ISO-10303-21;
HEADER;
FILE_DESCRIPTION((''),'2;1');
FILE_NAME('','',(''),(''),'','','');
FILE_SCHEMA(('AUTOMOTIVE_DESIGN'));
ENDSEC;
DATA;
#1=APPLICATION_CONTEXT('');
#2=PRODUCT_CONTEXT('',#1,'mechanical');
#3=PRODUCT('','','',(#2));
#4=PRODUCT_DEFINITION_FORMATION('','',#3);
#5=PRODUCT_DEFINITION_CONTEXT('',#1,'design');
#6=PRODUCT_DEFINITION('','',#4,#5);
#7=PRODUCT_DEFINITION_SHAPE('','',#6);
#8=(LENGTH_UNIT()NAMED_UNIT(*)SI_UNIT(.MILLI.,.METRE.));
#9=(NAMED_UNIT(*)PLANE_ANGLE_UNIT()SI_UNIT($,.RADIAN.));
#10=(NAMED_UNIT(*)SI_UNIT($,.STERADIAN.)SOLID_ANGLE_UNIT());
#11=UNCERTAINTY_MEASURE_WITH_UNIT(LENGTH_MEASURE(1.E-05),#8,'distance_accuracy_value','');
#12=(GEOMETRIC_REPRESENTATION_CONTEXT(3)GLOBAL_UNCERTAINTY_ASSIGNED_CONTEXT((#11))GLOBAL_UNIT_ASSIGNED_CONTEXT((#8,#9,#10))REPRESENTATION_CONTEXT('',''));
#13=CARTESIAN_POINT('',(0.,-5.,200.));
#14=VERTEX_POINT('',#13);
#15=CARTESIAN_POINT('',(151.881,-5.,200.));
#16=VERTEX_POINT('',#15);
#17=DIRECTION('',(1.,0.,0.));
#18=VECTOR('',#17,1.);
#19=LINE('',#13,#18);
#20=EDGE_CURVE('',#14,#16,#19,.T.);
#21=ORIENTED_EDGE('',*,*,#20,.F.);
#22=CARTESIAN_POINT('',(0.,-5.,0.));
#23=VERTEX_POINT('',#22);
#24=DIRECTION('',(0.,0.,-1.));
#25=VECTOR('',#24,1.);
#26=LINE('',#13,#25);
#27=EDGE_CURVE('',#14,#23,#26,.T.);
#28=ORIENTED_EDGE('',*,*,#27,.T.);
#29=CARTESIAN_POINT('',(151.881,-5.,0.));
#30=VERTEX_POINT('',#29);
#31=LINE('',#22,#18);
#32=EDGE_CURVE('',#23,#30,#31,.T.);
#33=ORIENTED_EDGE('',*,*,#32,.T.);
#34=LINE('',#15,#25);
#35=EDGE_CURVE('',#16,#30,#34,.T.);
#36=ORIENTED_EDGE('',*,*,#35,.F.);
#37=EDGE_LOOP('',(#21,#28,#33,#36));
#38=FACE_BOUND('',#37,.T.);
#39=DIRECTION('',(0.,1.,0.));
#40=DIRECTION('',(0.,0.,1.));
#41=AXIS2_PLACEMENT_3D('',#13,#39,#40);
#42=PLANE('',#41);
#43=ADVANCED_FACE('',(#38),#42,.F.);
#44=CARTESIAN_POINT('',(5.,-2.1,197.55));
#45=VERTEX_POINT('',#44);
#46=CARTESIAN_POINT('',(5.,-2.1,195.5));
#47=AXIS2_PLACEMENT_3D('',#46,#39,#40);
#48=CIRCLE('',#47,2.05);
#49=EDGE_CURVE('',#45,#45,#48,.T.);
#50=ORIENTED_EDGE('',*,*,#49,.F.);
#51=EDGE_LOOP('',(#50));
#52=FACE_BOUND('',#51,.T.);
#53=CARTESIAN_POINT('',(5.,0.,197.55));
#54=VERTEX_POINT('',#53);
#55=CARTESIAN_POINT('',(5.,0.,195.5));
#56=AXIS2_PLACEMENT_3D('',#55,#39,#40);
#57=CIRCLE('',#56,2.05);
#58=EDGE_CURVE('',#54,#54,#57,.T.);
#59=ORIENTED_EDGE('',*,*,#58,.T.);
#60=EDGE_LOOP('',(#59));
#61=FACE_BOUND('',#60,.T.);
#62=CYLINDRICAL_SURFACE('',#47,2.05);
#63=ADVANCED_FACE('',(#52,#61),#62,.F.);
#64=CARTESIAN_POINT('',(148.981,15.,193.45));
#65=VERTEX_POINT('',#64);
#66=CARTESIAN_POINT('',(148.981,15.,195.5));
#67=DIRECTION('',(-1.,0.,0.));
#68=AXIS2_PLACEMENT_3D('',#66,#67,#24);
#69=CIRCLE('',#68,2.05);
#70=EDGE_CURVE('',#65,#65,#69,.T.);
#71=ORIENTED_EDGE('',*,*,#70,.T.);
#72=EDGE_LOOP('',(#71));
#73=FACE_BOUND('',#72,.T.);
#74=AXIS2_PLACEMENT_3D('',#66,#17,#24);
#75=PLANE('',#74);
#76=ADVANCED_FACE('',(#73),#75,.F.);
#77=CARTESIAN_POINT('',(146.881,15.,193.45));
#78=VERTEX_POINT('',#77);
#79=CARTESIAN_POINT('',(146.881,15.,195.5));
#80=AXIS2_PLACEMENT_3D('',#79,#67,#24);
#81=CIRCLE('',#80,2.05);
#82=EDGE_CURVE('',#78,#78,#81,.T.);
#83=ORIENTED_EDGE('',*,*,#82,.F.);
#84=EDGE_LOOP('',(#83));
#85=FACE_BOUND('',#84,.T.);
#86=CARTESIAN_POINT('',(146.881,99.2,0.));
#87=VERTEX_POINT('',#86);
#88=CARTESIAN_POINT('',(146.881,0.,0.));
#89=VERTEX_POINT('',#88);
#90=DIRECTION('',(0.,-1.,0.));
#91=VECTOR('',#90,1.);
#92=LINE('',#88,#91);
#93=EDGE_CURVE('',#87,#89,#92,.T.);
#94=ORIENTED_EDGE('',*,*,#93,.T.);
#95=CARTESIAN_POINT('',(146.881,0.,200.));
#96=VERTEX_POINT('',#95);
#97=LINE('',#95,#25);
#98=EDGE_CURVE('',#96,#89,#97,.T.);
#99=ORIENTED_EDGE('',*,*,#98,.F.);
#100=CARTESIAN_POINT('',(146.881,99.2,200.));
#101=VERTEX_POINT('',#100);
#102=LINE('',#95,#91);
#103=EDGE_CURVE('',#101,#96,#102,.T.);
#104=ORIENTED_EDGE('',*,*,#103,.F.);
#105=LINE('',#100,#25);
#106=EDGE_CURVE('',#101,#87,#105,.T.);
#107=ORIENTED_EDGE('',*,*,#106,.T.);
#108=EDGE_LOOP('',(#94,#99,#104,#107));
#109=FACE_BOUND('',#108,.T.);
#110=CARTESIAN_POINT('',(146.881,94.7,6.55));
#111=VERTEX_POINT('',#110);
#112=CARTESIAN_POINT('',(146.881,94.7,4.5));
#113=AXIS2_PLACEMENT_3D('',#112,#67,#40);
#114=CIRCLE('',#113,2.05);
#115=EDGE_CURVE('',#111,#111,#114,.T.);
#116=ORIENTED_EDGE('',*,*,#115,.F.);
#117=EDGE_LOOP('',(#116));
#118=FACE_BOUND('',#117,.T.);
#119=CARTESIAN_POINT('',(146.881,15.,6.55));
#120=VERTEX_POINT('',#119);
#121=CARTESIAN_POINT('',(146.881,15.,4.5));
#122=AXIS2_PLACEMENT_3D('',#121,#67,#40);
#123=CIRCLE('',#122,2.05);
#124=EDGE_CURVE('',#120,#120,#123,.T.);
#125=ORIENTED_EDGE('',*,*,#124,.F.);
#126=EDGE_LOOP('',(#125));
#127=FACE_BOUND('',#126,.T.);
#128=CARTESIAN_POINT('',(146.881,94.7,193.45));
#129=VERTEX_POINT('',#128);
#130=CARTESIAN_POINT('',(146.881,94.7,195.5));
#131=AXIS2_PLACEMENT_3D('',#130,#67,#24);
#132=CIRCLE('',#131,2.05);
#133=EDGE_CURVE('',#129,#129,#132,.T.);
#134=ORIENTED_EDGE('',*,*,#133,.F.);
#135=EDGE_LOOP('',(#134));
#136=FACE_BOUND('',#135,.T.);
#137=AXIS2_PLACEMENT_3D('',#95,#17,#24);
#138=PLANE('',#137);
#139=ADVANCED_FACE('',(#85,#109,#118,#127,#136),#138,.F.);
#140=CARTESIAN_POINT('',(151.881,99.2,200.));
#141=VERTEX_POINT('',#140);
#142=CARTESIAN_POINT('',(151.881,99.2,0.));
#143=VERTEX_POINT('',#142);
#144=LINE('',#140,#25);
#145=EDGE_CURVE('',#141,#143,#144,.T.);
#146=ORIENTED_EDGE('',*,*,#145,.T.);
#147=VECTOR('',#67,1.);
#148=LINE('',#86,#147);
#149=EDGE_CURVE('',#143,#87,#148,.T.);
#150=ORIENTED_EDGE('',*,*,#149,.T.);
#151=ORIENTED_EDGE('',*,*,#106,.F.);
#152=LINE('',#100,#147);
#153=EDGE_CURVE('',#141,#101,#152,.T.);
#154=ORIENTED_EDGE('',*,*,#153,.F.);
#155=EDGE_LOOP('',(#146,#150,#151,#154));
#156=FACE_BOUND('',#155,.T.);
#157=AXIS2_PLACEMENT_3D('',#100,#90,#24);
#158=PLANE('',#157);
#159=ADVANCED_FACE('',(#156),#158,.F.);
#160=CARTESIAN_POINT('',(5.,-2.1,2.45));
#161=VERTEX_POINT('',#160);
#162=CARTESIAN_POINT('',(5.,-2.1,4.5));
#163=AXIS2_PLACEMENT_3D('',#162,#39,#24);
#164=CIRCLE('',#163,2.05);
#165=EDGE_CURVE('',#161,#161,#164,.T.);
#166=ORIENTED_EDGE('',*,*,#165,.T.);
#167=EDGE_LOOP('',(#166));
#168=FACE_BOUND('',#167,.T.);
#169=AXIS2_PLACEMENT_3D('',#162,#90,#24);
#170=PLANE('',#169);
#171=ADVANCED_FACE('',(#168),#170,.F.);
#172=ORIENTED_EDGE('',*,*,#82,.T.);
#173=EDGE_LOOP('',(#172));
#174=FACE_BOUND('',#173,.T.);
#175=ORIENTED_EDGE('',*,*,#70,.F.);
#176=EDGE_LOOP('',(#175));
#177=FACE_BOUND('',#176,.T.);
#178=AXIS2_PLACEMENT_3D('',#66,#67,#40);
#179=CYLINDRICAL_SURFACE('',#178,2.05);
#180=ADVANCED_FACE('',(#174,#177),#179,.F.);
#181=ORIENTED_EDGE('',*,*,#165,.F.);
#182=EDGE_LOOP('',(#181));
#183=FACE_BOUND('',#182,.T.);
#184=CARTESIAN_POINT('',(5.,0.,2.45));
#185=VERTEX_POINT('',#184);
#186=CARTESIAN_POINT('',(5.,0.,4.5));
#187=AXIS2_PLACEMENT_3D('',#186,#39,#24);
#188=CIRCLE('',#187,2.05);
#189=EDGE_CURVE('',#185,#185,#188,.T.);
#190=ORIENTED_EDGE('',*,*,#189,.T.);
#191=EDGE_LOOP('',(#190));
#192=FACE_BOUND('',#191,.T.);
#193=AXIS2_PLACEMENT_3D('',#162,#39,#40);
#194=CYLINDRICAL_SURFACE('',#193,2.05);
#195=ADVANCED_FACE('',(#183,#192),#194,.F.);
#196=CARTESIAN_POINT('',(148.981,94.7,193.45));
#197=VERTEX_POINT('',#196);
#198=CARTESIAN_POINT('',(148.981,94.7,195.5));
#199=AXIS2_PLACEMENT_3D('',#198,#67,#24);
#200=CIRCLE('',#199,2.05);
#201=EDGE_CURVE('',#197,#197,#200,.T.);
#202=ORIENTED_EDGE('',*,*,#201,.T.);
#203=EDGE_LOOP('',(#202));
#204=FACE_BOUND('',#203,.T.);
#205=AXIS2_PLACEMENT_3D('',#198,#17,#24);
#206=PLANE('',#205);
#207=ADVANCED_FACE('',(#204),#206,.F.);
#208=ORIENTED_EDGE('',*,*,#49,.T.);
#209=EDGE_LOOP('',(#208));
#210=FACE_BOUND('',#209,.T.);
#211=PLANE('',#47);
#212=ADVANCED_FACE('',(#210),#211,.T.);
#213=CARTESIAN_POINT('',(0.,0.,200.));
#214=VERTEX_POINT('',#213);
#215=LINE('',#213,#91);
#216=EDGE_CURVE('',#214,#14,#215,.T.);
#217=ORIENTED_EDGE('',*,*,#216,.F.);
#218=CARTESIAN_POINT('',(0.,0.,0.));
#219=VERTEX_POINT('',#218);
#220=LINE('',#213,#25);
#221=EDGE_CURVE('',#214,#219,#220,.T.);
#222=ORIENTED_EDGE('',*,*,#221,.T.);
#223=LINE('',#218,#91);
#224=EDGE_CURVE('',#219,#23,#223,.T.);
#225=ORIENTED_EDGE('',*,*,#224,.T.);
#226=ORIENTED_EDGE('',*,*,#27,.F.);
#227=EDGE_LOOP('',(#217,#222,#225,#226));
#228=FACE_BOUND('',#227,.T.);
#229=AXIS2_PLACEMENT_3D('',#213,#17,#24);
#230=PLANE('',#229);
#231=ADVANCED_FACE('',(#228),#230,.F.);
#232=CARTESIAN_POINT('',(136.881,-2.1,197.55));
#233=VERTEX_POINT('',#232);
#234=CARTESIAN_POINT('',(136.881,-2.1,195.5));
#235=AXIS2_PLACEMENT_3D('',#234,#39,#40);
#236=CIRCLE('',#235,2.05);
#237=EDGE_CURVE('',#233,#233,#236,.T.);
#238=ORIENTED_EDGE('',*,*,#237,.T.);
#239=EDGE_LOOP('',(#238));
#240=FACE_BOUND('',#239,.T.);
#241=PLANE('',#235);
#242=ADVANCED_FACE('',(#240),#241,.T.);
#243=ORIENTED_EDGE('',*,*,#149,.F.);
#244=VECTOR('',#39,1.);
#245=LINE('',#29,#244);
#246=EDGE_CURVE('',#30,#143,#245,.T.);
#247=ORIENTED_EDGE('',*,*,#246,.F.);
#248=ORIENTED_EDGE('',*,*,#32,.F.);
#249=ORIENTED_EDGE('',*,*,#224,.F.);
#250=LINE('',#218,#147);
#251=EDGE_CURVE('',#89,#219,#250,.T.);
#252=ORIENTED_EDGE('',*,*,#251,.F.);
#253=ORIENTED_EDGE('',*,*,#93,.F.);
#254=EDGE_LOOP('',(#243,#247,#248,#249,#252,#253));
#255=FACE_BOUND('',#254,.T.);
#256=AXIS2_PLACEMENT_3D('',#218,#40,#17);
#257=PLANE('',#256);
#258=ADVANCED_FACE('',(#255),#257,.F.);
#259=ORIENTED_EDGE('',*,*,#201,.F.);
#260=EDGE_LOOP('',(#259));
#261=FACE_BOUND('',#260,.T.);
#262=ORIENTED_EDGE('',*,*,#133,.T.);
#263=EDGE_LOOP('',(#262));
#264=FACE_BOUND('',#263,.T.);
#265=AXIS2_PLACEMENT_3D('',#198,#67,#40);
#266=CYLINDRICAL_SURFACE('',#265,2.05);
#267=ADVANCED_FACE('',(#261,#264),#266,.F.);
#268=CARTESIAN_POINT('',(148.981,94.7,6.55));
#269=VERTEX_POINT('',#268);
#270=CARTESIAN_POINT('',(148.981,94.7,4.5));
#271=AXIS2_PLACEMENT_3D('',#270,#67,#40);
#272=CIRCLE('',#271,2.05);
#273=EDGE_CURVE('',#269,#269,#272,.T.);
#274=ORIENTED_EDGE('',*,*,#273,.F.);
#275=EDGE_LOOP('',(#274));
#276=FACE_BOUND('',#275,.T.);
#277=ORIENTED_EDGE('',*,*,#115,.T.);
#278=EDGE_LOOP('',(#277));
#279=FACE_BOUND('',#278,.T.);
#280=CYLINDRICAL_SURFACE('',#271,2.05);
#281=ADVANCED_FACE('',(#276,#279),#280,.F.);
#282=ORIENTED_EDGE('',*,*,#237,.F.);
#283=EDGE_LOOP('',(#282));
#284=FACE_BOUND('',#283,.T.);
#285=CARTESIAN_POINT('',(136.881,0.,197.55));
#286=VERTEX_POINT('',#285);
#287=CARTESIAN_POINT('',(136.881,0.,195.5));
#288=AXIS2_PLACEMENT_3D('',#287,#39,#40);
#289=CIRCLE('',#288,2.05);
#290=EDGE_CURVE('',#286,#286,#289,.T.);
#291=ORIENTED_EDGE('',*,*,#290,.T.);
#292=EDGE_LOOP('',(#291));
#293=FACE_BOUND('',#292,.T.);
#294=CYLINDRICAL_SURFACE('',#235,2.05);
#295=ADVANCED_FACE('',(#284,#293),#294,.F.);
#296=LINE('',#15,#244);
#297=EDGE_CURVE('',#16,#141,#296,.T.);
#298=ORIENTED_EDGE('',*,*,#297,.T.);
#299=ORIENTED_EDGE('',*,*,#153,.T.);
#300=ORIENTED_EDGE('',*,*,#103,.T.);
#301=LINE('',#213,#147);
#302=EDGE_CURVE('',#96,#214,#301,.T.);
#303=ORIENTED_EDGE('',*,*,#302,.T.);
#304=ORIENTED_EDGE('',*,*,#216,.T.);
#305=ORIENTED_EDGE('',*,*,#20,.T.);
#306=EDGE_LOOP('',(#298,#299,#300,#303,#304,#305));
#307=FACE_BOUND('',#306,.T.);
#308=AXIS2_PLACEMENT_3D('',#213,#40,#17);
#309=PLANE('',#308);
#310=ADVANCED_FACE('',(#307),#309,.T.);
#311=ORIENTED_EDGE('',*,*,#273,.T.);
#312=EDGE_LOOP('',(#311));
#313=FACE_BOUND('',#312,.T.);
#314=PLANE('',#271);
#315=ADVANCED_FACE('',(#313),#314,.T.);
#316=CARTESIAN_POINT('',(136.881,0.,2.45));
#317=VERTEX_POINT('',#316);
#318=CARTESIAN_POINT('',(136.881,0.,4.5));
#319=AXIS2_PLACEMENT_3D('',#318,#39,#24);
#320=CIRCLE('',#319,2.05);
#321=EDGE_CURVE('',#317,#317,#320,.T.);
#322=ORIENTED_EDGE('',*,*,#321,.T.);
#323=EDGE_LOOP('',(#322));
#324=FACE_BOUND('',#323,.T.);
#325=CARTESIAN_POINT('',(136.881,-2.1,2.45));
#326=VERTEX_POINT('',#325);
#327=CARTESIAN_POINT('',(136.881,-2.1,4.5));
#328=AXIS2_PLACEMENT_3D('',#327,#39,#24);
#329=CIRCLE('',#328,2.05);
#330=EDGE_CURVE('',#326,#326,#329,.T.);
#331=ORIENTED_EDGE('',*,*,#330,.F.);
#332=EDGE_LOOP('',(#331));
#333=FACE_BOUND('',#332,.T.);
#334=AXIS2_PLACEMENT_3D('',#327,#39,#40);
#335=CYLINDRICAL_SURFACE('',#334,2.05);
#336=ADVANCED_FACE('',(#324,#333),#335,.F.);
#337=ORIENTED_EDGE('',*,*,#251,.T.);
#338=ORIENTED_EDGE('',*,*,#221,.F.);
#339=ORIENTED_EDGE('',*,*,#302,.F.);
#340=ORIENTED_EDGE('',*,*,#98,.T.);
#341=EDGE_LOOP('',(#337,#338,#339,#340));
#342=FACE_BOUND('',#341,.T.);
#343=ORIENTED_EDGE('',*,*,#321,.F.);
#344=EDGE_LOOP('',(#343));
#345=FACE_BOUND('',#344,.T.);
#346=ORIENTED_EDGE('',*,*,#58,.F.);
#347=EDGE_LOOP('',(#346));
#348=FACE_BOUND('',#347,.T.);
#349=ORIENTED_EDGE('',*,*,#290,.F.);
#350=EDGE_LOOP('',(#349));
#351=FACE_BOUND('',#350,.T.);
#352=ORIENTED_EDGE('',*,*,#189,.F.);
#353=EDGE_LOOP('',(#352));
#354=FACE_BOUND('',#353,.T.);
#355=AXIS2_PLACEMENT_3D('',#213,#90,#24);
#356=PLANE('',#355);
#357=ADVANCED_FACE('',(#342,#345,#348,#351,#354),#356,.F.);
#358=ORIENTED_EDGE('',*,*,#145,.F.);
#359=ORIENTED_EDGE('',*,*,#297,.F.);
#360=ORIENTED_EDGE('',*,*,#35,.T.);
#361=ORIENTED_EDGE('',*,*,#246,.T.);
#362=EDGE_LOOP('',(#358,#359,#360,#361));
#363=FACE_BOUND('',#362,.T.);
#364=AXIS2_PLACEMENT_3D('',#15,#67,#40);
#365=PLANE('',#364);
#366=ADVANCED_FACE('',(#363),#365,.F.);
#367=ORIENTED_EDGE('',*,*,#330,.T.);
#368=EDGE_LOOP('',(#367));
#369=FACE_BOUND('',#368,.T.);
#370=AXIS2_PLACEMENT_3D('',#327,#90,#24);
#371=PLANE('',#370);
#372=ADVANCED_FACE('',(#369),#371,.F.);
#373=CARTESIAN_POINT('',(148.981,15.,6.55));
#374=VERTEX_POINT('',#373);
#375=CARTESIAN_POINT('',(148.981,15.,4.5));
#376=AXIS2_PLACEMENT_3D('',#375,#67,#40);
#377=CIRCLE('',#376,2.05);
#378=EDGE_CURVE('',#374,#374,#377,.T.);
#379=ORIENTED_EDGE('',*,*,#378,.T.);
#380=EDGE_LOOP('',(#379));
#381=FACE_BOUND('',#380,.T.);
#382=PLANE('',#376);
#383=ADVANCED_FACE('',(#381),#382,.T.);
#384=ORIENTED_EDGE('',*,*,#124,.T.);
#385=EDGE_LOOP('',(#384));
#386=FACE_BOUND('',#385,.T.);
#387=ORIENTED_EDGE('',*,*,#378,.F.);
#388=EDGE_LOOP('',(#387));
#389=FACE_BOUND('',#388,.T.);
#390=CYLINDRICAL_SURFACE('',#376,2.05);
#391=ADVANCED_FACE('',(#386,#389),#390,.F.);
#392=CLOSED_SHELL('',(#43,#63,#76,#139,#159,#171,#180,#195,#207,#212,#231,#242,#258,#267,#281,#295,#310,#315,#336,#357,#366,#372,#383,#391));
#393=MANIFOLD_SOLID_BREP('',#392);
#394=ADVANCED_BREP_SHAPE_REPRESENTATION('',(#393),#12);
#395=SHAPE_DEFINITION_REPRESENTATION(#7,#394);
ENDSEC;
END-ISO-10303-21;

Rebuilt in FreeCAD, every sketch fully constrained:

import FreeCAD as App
import Part
import Sketcher
from FreeCAD import Vector
Q = App.Units.Quantity

doc = App.newDocument("Part")
body = doc.addObject("PartDesign::Body", "Body")

# Sketch on XY plane
sketch1 = body.newObject("Sketcher::SketchObject", "Sketch")
sketch1.AttachmentSupport = (doc.getObject("XY_Plane"), [""])
sketch1.MapMode = "FlatFace"
sketch1.addGeometry([
    Part.LineSegment(Vector(146.881, 0, 0), Vector(0, 0, 0)),  # 0
    Part.LineSegment(Vector(0, 0, 0), Vector(0, -5, 0)),  # 1
    Part.LineSegment(Vector(0, -5, 0), Vector(151.881, -5, 0)),  # 2
    Part.LineSegment(Vector(151.881, -5, 0), Vector(151.881, 99.2, 0)),  # 3
    Part.LineSegment(Vector(151.881, 99.2, 0), Vector(146.881, 99.2, 0)),  # 4
    Part.LineSegment(Vector(146.881, 99.2, 0), Vector(146.881, 0, 0)),  # 5
], False)
sketch1.addConstraint([
    Sketcher.Constraint("Coincident", 0, 2, 1, 1),
    Sketcher.Constraint("Coincident", 1, 2, 2, 1),
    Sketcher.Constraint("Coincident", 2, 2, 3, 1),
    Sketcher.Constraint("Coincident", 3, 2, 4, 1),
    Sketcher.Constraint("Coincident", 4, 2, 5, 1),
    Sketcher.Constraint("Coincident", 5, 2, 0, 1),
    Sketcher.Constraint("Horizontal", 0),
    Sketcher.Constraint("Vertical", 1),
    Sketcher.Constraint("Horizontal", 2),
    Sketcher.Constraint("Vertical", 3),
    Sketcher.Constraint("Horizontal", 4),
    Sketcher.Constraint("Vertical", 5),
    Sketcher.Constraint("Coincident", 0, 2, -1, 1),
    Sketcher.Constraint("Equal", 4, 1),
    Sketcher.Constraint("DistanceX", 4, 2, 4, 1, Q("5 mm")),
    Sketcher.Constraint("DistanceY", 3, 1, 3, 2, Q("104.2 mm")),
    Sketcher.Constraint("DistanceX", 0, 2, 0, 1, Q("146.881 mm")),
])
pad1 = body.newObject("PartDesign::Pad", "Pad")
pad1.Profile = sketch1
pad1.Length = 200

# Sketch on XZ plane
sketch2 = body.newObject("Sketcher::SketchObject", "Sketch001")
sketch2.AttachmentSupport = (doc.getObject("XZ_Plane"), [""])
sketch2.MapMode = "FlatFace"
sketch2.addGeometry([
    Part.Circle(Vector(5, 195.5, 0), Vector(0, 0, 1), 2.05),
    Part.Circle(Vector(136.881, 195.5, 0), Vector(0, 0, 1), 2.05),
    Part.Circle(Vector(136.881, 4.5, 0), Vector(0, 0, 1), 2.05),
    Part.Circle(Vector(5, 4.5, 0), Vector(0, 0, 1), 2.05),
], False)
sketch2.addConstraint([
    Sketcher.Constraint("Equal", 0, 1),
    Sketcher.Constraint("Equal", 1, 2),
    Sketcher.Constraint("Equal", 2, 3),
    Sketcher.Constraint("Horizontal", 0, 3, 1, 3),
    Sketcher.Constraint("Horizontal", 2, 3, 3, 3),
    Sketcher.Constraint("Vertical", 1, 3, 2, 3),
    Sketcher.Constraint("Vertical", 0, 3, 3, 3),
    Sketcher.Constraint("Diameter", 0, Q("4.1 mm")),
    Sketcher.Constraint("DistanceX", -1, 1, 0, 3, Q("5 mm")),
    Sketcher.Constraint("DistanceY", 2, 3, 1, 3, Q("191 mm")),
    Sketcher.Constraint("DistanceY", -1, 1, 0, 3, Q("195.5 mm")),
    Sketcher.Constraint("DistanceX", -1, 1, 1, 3, Q("136.881 mm")),
])
pocket1 = body.newObject("PartDesign::Pocket", "Pocket")
pocket1.Profile = sketch2
pocket1.Length = 2.1
pocket1.Reversed = True

# Sketch on YZ plane
sketch3 = body.newObject("Sketcher::SketchObject", "Sketch002")
sketch3.AttachmentSupport = (doc.getObject("YZ_Plane"), [""])
sketch3.MapMode = "FlatFace"
sketch3.AttachmentOffset = App.Placement(Vector(0, 0, 146.881), App.Rotation())
sketch3.addGeometry([
    Part.Circle(Vector(15, 4.5, 0), Vector(0, 0, 1), 2.05),
    Part.Circle(Vector(94.7, 4.5, 0), Vector(0, 0, 1), 2.05),
    Part.Circle(Vector(15, 195.5, 0), Vector(0, 0, 1), 2.05),
    Part.Circle(Vector(94.7, 195.5, 0), Vector(0, 0, 1), 2.05),
], False)
sketch3.addConstraint([
    Sketcher.Constraint("Equal", 0, 1),
    Sketcher.Constraint("Equal", 1, 2),
    Sketcher.Constraint("Equal", 2, 3),
    Sketcher.Constraint("Horizontal", 0, 3, 1, 3),
    Sketcher.Constraint("Horizontal", 2, 3, 3, 3),
    Sketcher.Constraint("Vertical", 0, 3, 2, 3),
    Sketcher.Constraint("Vertical", 1, 3, 3, 3),
    Sketcher.Constraint("Diameter", 0, Q("4.1 mm")),
    Sketcher.Constraint("DistanceX", -1, 1, 0, 3, Q("15 mm")),
    Sketcher.Constraint("DistanceY", 0, 3, 2, 3, Q("191 mm")),
    Sketcher.Constraint("DistanceY", -1, 1, 0, 3, Q("4.5 mm")),
    Sketcher.Constraint("DistanceX", -1, 1, 1, 3, Q("94.7 mm")),
])
pocket2 = body.newObject("PartDesign::Pocket", "Pocket001")
pocket2.Profile = sketch3
pocket2.Length = 2.1
pocket2.Reversed = True

doc.recompute()
